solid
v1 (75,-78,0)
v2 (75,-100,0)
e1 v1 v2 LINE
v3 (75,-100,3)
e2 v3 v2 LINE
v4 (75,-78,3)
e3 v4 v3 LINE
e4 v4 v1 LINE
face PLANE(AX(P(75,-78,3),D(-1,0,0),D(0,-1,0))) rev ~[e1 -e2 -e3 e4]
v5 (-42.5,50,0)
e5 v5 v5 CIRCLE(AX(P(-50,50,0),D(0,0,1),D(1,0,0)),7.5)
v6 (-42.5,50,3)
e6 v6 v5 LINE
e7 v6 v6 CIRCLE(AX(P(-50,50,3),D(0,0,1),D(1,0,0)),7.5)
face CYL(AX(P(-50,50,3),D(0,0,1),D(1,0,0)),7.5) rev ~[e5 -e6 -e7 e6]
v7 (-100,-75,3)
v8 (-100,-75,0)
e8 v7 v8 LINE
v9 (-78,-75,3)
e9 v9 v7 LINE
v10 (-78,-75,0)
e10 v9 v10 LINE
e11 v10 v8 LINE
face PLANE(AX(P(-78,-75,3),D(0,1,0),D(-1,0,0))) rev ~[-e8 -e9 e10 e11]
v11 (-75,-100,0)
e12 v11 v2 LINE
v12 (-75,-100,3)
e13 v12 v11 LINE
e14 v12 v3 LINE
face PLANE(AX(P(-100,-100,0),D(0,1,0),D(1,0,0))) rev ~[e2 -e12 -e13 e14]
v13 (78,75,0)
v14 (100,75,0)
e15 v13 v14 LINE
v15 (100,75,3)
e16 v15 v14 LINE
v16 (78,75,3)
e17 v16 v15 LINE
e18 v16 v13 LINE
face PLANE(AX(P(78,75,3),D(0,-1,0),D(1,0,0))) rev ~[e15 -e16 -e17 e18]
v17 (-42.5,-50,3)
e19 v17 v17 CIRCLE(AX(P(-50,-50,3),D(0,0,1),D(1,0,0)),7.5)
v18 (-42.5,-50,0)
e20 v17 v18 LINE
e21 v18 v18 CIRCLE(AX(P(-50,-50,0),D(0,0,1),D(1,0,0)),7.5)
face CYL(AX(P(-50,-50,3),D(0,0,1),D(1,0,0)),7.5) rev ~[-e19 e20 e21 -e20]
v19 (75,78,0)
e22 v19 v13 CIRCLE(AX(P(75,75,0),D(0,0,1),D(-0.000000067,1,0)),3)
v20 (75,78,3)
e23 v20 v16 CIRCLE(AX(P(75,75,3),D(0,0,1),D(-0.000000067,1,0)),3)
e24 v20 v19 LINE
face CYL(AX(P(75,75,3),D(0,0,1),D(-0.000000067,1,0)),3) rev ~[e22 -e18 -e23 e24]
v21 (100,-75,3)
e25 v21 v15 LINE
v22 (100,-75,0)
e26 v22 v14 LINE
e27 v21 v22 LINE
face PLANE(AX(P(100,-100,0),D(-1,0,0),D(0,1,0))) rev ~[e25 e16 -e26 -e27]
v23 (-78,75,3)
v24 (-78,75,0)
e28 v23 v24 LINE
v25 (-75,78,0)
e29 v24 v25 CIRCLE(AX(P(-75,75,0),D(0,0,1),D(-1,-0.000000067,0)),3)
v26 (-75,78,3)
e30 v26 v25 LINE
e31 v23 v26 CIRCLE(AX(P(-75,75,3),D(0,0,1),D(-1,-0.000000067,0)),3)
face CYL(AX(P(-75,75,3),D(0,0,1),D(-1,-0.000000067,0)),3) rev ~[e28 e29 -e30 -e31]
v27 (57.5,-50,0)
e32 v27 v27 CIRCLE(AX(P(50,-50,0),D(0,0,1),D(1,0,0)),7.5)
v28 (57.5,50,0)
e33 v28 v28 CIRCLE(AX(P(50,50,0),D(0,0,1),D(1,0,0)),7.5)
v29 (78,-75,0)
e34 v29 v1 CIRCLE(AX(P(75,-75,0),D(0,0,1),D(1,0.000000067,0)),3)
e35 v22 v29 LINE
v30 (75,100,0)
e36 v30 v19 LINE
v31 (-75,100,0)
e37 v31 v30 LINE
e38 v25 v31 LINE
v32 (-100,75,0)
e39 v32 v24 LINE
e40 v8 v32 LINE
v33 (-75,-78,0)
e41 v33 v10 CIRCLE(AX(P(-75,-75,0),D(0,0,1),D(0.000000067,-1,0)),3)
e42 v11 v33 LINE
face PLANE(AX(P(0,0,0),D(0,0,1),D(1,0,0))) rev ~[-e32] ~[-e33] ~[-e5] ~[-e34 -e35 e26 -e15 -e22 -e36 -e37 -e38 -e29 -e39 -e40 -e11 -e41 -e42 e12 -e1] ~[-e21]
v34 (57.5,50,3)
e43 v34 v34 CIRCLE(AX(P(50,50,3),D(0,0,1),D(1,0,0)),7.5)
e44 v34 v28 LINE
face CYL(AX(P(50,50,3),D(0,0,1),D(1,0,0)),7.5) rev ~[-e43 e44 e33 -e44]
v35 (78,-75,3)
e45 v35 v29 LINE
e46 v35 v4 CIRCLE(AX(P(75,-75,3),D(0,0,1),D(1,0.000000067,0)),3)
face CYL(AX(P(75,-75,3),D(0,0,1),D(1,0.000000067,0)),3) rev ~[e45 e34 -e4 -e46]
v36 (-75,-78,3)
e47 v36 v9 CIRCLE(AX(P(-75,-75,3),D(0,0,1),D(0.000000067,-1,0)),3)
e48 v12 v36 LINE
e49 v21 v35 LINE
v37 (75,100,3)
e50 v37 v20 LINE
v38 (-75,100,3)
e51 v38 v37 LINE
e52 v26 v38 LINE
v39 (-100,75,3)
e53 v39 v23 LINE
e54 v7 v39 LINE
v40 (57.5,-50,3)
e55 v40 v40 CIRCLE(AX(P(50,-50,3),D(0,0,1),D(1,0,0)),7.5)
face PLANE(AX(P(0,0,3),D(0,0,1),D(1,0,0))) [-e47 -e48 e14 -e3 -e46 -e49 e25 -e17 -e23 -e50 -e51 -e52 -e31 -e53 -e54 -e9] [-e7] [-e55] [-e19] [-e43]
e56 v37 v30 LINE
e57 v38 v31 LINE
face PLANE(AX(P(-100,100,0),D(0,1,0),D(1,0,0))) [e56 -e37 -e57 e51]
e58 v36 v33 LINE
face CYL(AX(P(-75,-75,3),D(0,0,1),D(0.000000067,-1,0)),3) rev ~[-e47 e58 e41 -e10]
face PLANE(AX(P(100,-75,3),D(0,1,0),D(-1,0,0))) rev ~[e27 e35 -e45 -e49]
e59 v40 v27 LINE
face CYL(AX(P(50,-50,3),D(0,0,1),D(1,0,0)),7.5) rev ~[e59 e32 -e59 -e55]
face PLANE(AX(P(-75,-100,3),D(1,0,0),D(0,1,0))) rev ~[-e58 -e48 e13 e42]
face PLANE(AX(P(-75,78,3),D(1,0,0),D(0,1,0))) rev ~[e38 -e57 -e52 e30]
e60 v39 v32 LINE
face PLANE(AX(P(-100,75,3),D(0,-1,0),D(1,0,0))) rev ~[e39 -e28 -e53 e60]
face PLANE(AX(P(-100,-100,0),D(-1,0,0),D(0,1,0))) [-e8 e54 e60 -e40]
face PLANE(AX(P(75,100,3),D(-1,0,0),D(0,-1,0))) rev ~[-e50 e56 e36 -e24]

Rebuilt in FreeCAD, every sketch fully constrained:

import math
import FreeCAD as App
import Part
import Sketcher


def add_polygon(sketch, points):
    """Adds a closed chain of lines whose ends are joined by coincident constraints."""
    first, n = sketch.GeometryCount, len(points)
    for a, b in zip(points, points[1:] + points[:1]):
        sketch.addGeometry(Part.LineSegment(App.Vector(*a, 0), App.Vector(*b, 0)), False)
    for i in range(n):
        sketch.addConstraint(Sketcher.Constraint("Coincident", first + i, 2, first + (i + 1) % n, 1))

doc = App.newDocument("Part")
params = doc.addObject("Spreadsheet::Sheet", "Params")
for row, (alias, value) in enumerate([
    ("sketch1_width", "200 mm"),
    ("pad1_length", "3 mm"),
    ("sketch2_radius", "3 mm"),
    ("sketch2_width", "25 mm"),
    ("sketch3_diameter", "15 mm"),
], start=1):
    params.set(f"A{row}", alias)
    params.set(f"B{row}", "=" + value)
    params.setAlias(f"B{row}", alias)

body = doc.addObject("PartDesign::Body", "Body")

# Sketch on XY plane
sketch1 = doc.addObject("Sketcher::SketchObject", "Sketch")
body.addObject(sketch1)
sketch1.AttachmentSupport = (doc.XY_Plane, [""])
sketch1.MapMode = "FlatFace"
add_polygon(sketch1, [(-100, 100), (-100, -100), (100, -100), (100, 100)])  # lines 0-3
sketch1.addConstraint([
    Sketcher.Constraint("Vertical", 0),
    Sketcher.Constraint("Horizontal", 1),
    Sketcher.Constraint("Vertical", 2),
    Sketcher.Constraint("Horizontal", 3),
    Sketcher.Constraint("Symmetric", 0, 2, 2, 2, -1, 1),
    Sketcher.Constraint("Equal", 3, 0),
    Sketcher.Constraint("DistanceX", 1, 1, 1, 2, 200.0),
])
sketch1.setExpression("Constraints[10]", "Params.sketch1_width")
pad1 = doc.addObject("PartDesign::Pad", "Pad")
body.addObject(pad1)
pad1.Profile = sketch1
pad1.setExpression("Length", "Params.pad1_length")

# Sketch on XY plane
sketch2 = doc.addObject("Sketcher::SketchObject", "Sketch001")
body.addObject(sketch2)
sketch2.AttachmentSupport = (doc.XY_Plane, [""])
sketch2.MapMode = "FlatFace"
sketch2.AttachmentOffset = App.Placement(App.Vector(0, 0, 3), App.Rotation())
sketch2.addGeometry([
    Part.LineSegment(App.Vector(-75, 100, 0), App.Vector(-100, 100, 0)),  # 0
    Part.LineSegment(App.Vector(-100, 100, 0), App.Vector(-100, 75, 0)),  # 1
    Part.LineSegment(App.Vector(-100, 75, 0), App.Vector(-78, 75, 0)),  # 2
    Part.ArcOfCircle(Part.Circle(App.Vector(-75, 75, 0), App.Vector(0, 0, 1), 3), math.radians(-180), math.radians(90)),  # 3
    Part.LineSegment(App.Vector(-75, 78, 0), App.Vector(-75, 100, 0)),  # 4
    Part.ArcOfCircle(Part.Circle(App.Vector(75, 75, 0), App.Vector(0, 0, 1), 3), math.radians(90), math.radians(360)),  # 5
    Part.LineSegment(App.Vector(78, 75, 0), App.Vector(100, 75, 0)),  # 6
    Part.LineSegment(App.Vector(100, 75, 0), App.Vector(100, 100, 0)),  # 7
    Part.LineSegment(App.Vector(100, 100, 0), App.Vector(75, 100, 0)),  # 8
    Part.LineSegment(App.Vector(75, 100, 0), App.Vector(75, 78, 0)),  # 9
    Part.LineSegment(App.Vector(-100, -100, 0), App.Vector(-75, -100, 0)),  # 10
    Part.LineSegment(App.Vector(-75, -100, 0), App.Vector(-75, -78, 0)),  # 11
    Part.ArcOfCircle(Part.Circle(App.Vector(-75, -75, 0), App.Vector(0, 0, 1), 3), math.radians(-90), math.radians(180)),  # 12
    Part.LineSegment(App.Vector(-78, -75, 0), App.Vector(-100, -75, 0)),  # 13
    Part.LineSegment(App.Vector(-100, -75, 0), App.Vector(-100, -100, 0)),  # 14
    Part.LineSegment(App.Vector(100, -75, 0), App.Vector(78, -75, 0)),  # 15
    Part.ArcOfCircle(Part.Circle(App.Vector(75, -75, 0), App.Vector(0, 0, 1), 3), math.radians(0), math.radians(270)),  # 16
    Part.LineSegment(App.Vector(75, -78, 0), App.Vector(75, -100, 0)),  # 17
    Part.LineSegment(App.Vector(75, -100, 0), App.Vector(100, -100, 0)),  # 18
    Part.LineSegment(App.Vector(100, -100, 0), App.Vector(100, -75, 0)),  # 19
], False)
sketch2.addConstraint([
    Sketcher.Constraint("Coincident", 0, 2, 1, 1),
    Sketcher.Constraint("Coincident", 1, 2, 2, 1),
    Sketcher.Constraint("Coincident", 2, 2, 3, 1),
    Sketcher.Constraint("Coincident", 3, 2, 4, 1),
    Sketcher.Constraint("Coincident", 4, 2, 0, 1),
    Sketcher.Constraint("Coincident", 5, 2, 6, 1),
    Sketcher.Constraint("Coincident", 6, 2, 7, 1),
    Sketcher.Constraint("Coincident", 7, 2, 8, 1),
    Sketcher.Constraint("Coincident", 8, 2, 9, 1),
    Sketcher.Constraint("Coincident", 9, 2, 5, 1),
    Sketcher.Constraint("Coincident", 10, 2, 11, 1),
    Sketcher.Constraint("Coincident", 11, 2, 12, 1),
    Sketcher.Constraint("Coincident", 12, 2, 13, 1),
    Sketcher.Constraint("Coincident", 13, 2, 14, 1),
    Sketcher.Constraint("Coincident", 14, 2, 10, 1),
    Sketcher.Constraint("Coincident", 15, 2, 16, 1),
    Sketcher.Constraint("Coincident", 16, 2, 17, 1),
    Sketcher.Constraint("Coincident", 17, 2, 18, 1),
    Sketcher.Constraint("Coincident", 18, 2, 19, 1),
    Sketcher.Constraint("Coincident", 19, 2, 15, 1),
    Sketcher.Constraint("Horizontal", 0),
    Sketcher.Constraint("Vertical", 1),
    Sketcher.Constraint("Horizontal", 2),
    Sketcher.Constraint("Vertical", 4),
    Sketcher.Constraint("Horizontal", 6),
    Sketcher.Constraint("Vertical", 7),
    Sketcher.Constraint("Horizontal", 8),
    Sketcher.Constraint("Vertical", 9),
    Sketcher.Constraint("Horizontal", 10),
    Sketcher.Constraint("Vertical", 11),
    Sketcher.Constraint("Horizontal", 13),
    Sketcher.Constraint("Vertical", 14),
    Sketcher.Constraint("Horizontal", 15),
    Sketcher.Constraint("Vertical", 17),
    Sketcher.Constraint("Horizontal", 18),
    Sketcher.Constraint("Vertical", 19),
    Sketcher.Constraint("Equal", 3, 5),
    Sketcher.Constraint("Equal", 5, 12),
    Sketcher.Constraint("Equal", 12, 16),
    Sketcher.Constraint("Symmetric", 5, 3, 12, 3, -1, 1),
    Sketcher.Constraint("Symmetric", 3, 3, 16, 3, -1, 1),
    Sketcher.Constraint("Symmetric", 8, 2, 10, 2, -1, 1),
    Sketcher.Constraint("Symmetric", 6, 2, 13, 2, -1, 1),
    Sketcher.Constraint("Symmetric", 4, 2, 17, 2, -1, 1),
    Sketcher.Constraint("Symmetric", 1, 2, 19, 2, -1, 1),
    Sketcher.Constraint("Symmetric", 3, 3, 5, 3, -2),
    Sketcher.Constraint("Symmetric", 1, 2, 6, 2, -2),
    Sketcher.Constraint("Symmetric", 4, 2, 8, 2, -2),
    Sketcher.Constraint("Horizontal", 5, 3, 1, 2),
    Sketcher.Constraint("Vertical", 12, 3, 3, 2),
    Sketcher.Constraint("Equal", 18, 1),
    Sketcher.Constraint("Radius", 3, 3.0),
    Sketcher.Constraint("DistanceX", 0, 2, 0, 1, 25.0),
    Sketcher.Constraint("DistanceX", 3, 3, -1, 1, 75.0),
    Sketcher.Constraint("DistanceY", -1, 1, 3, 3, 75.0),
])
sketch2.setExpression("Constraints[51]", "Params.sketch2_radius")
sketch2.setExpression("Constraints[52]", "Params.sketch2_width")
pocket1 = doc.addObject("PartDesign::Pocket", "Pocket")
body.addObject(pocket1)
pocket1.Profile = sketch2
pocket1.Type = "ThroughAll"

# Sketch on XY plane
sketch3 = doc.addObject("Sketcher::SketchObject", "Sketch002")
body.addObject(sketch3)
sketch3.AttachmentSupport = (doc.XY_Plane, [""])
sketch3.MapMode = "FlatFace"
sketch3.AttachmentOffset = App.Placement(App.Vector(0, 0, 3), App.Rotation())
sketch3.addGeometry([
    Part.Circle(App.Vector(-50, 50, 0), App.Vector(0, 0, 1), 8),
    Part.Circle(App.Vector(50, 50, 0), App.Vector(0, 0, 1), 8),
    Part.Circle(App.Vector(-50, -50, 0), App.Vector(0, 0, 1), 8),
    Part.Circle(App.Vector(50, -50, 0), App.Vector(0, 0, 1), 8),
], False)
sketch3.addConstraint([
    Sketcher.Constraint("Equal", 0, 1),
    Sketcher.Constraint("Equal", 1, 2),
    Sketcher.Constraint("Equal", 2, 3),
    Sketcher.Constraint("Symmetric", 1, 3, 2, 3, -1, 1),
    Sketcher.Constraint("Symmetric", 0, 3, 3, 3, -1, 1),
    Sketcher.Constraint("Symmetric", 0, 3, 1, 3, -2),
    Sketcher.Constraint("Diameter", 0, 15.0),
    Sketcher.Constraint("DistanceX", 0, 3, -1, 1, 50.0),
    Sketcher.Constraint("DistanceY", -1, 1, 0, 3, 50.0),
])
sketch3.setExpression("Constraints[6]", "Params.sketch3_diameter")
pocket2 = doc.addObject("PartDesign::Pocket", "Pocket001")
body.addObject(pocket2)
pocket2.Profile = sketch3
pocket2.Type = "ThroughAll"

doc.recompute()
